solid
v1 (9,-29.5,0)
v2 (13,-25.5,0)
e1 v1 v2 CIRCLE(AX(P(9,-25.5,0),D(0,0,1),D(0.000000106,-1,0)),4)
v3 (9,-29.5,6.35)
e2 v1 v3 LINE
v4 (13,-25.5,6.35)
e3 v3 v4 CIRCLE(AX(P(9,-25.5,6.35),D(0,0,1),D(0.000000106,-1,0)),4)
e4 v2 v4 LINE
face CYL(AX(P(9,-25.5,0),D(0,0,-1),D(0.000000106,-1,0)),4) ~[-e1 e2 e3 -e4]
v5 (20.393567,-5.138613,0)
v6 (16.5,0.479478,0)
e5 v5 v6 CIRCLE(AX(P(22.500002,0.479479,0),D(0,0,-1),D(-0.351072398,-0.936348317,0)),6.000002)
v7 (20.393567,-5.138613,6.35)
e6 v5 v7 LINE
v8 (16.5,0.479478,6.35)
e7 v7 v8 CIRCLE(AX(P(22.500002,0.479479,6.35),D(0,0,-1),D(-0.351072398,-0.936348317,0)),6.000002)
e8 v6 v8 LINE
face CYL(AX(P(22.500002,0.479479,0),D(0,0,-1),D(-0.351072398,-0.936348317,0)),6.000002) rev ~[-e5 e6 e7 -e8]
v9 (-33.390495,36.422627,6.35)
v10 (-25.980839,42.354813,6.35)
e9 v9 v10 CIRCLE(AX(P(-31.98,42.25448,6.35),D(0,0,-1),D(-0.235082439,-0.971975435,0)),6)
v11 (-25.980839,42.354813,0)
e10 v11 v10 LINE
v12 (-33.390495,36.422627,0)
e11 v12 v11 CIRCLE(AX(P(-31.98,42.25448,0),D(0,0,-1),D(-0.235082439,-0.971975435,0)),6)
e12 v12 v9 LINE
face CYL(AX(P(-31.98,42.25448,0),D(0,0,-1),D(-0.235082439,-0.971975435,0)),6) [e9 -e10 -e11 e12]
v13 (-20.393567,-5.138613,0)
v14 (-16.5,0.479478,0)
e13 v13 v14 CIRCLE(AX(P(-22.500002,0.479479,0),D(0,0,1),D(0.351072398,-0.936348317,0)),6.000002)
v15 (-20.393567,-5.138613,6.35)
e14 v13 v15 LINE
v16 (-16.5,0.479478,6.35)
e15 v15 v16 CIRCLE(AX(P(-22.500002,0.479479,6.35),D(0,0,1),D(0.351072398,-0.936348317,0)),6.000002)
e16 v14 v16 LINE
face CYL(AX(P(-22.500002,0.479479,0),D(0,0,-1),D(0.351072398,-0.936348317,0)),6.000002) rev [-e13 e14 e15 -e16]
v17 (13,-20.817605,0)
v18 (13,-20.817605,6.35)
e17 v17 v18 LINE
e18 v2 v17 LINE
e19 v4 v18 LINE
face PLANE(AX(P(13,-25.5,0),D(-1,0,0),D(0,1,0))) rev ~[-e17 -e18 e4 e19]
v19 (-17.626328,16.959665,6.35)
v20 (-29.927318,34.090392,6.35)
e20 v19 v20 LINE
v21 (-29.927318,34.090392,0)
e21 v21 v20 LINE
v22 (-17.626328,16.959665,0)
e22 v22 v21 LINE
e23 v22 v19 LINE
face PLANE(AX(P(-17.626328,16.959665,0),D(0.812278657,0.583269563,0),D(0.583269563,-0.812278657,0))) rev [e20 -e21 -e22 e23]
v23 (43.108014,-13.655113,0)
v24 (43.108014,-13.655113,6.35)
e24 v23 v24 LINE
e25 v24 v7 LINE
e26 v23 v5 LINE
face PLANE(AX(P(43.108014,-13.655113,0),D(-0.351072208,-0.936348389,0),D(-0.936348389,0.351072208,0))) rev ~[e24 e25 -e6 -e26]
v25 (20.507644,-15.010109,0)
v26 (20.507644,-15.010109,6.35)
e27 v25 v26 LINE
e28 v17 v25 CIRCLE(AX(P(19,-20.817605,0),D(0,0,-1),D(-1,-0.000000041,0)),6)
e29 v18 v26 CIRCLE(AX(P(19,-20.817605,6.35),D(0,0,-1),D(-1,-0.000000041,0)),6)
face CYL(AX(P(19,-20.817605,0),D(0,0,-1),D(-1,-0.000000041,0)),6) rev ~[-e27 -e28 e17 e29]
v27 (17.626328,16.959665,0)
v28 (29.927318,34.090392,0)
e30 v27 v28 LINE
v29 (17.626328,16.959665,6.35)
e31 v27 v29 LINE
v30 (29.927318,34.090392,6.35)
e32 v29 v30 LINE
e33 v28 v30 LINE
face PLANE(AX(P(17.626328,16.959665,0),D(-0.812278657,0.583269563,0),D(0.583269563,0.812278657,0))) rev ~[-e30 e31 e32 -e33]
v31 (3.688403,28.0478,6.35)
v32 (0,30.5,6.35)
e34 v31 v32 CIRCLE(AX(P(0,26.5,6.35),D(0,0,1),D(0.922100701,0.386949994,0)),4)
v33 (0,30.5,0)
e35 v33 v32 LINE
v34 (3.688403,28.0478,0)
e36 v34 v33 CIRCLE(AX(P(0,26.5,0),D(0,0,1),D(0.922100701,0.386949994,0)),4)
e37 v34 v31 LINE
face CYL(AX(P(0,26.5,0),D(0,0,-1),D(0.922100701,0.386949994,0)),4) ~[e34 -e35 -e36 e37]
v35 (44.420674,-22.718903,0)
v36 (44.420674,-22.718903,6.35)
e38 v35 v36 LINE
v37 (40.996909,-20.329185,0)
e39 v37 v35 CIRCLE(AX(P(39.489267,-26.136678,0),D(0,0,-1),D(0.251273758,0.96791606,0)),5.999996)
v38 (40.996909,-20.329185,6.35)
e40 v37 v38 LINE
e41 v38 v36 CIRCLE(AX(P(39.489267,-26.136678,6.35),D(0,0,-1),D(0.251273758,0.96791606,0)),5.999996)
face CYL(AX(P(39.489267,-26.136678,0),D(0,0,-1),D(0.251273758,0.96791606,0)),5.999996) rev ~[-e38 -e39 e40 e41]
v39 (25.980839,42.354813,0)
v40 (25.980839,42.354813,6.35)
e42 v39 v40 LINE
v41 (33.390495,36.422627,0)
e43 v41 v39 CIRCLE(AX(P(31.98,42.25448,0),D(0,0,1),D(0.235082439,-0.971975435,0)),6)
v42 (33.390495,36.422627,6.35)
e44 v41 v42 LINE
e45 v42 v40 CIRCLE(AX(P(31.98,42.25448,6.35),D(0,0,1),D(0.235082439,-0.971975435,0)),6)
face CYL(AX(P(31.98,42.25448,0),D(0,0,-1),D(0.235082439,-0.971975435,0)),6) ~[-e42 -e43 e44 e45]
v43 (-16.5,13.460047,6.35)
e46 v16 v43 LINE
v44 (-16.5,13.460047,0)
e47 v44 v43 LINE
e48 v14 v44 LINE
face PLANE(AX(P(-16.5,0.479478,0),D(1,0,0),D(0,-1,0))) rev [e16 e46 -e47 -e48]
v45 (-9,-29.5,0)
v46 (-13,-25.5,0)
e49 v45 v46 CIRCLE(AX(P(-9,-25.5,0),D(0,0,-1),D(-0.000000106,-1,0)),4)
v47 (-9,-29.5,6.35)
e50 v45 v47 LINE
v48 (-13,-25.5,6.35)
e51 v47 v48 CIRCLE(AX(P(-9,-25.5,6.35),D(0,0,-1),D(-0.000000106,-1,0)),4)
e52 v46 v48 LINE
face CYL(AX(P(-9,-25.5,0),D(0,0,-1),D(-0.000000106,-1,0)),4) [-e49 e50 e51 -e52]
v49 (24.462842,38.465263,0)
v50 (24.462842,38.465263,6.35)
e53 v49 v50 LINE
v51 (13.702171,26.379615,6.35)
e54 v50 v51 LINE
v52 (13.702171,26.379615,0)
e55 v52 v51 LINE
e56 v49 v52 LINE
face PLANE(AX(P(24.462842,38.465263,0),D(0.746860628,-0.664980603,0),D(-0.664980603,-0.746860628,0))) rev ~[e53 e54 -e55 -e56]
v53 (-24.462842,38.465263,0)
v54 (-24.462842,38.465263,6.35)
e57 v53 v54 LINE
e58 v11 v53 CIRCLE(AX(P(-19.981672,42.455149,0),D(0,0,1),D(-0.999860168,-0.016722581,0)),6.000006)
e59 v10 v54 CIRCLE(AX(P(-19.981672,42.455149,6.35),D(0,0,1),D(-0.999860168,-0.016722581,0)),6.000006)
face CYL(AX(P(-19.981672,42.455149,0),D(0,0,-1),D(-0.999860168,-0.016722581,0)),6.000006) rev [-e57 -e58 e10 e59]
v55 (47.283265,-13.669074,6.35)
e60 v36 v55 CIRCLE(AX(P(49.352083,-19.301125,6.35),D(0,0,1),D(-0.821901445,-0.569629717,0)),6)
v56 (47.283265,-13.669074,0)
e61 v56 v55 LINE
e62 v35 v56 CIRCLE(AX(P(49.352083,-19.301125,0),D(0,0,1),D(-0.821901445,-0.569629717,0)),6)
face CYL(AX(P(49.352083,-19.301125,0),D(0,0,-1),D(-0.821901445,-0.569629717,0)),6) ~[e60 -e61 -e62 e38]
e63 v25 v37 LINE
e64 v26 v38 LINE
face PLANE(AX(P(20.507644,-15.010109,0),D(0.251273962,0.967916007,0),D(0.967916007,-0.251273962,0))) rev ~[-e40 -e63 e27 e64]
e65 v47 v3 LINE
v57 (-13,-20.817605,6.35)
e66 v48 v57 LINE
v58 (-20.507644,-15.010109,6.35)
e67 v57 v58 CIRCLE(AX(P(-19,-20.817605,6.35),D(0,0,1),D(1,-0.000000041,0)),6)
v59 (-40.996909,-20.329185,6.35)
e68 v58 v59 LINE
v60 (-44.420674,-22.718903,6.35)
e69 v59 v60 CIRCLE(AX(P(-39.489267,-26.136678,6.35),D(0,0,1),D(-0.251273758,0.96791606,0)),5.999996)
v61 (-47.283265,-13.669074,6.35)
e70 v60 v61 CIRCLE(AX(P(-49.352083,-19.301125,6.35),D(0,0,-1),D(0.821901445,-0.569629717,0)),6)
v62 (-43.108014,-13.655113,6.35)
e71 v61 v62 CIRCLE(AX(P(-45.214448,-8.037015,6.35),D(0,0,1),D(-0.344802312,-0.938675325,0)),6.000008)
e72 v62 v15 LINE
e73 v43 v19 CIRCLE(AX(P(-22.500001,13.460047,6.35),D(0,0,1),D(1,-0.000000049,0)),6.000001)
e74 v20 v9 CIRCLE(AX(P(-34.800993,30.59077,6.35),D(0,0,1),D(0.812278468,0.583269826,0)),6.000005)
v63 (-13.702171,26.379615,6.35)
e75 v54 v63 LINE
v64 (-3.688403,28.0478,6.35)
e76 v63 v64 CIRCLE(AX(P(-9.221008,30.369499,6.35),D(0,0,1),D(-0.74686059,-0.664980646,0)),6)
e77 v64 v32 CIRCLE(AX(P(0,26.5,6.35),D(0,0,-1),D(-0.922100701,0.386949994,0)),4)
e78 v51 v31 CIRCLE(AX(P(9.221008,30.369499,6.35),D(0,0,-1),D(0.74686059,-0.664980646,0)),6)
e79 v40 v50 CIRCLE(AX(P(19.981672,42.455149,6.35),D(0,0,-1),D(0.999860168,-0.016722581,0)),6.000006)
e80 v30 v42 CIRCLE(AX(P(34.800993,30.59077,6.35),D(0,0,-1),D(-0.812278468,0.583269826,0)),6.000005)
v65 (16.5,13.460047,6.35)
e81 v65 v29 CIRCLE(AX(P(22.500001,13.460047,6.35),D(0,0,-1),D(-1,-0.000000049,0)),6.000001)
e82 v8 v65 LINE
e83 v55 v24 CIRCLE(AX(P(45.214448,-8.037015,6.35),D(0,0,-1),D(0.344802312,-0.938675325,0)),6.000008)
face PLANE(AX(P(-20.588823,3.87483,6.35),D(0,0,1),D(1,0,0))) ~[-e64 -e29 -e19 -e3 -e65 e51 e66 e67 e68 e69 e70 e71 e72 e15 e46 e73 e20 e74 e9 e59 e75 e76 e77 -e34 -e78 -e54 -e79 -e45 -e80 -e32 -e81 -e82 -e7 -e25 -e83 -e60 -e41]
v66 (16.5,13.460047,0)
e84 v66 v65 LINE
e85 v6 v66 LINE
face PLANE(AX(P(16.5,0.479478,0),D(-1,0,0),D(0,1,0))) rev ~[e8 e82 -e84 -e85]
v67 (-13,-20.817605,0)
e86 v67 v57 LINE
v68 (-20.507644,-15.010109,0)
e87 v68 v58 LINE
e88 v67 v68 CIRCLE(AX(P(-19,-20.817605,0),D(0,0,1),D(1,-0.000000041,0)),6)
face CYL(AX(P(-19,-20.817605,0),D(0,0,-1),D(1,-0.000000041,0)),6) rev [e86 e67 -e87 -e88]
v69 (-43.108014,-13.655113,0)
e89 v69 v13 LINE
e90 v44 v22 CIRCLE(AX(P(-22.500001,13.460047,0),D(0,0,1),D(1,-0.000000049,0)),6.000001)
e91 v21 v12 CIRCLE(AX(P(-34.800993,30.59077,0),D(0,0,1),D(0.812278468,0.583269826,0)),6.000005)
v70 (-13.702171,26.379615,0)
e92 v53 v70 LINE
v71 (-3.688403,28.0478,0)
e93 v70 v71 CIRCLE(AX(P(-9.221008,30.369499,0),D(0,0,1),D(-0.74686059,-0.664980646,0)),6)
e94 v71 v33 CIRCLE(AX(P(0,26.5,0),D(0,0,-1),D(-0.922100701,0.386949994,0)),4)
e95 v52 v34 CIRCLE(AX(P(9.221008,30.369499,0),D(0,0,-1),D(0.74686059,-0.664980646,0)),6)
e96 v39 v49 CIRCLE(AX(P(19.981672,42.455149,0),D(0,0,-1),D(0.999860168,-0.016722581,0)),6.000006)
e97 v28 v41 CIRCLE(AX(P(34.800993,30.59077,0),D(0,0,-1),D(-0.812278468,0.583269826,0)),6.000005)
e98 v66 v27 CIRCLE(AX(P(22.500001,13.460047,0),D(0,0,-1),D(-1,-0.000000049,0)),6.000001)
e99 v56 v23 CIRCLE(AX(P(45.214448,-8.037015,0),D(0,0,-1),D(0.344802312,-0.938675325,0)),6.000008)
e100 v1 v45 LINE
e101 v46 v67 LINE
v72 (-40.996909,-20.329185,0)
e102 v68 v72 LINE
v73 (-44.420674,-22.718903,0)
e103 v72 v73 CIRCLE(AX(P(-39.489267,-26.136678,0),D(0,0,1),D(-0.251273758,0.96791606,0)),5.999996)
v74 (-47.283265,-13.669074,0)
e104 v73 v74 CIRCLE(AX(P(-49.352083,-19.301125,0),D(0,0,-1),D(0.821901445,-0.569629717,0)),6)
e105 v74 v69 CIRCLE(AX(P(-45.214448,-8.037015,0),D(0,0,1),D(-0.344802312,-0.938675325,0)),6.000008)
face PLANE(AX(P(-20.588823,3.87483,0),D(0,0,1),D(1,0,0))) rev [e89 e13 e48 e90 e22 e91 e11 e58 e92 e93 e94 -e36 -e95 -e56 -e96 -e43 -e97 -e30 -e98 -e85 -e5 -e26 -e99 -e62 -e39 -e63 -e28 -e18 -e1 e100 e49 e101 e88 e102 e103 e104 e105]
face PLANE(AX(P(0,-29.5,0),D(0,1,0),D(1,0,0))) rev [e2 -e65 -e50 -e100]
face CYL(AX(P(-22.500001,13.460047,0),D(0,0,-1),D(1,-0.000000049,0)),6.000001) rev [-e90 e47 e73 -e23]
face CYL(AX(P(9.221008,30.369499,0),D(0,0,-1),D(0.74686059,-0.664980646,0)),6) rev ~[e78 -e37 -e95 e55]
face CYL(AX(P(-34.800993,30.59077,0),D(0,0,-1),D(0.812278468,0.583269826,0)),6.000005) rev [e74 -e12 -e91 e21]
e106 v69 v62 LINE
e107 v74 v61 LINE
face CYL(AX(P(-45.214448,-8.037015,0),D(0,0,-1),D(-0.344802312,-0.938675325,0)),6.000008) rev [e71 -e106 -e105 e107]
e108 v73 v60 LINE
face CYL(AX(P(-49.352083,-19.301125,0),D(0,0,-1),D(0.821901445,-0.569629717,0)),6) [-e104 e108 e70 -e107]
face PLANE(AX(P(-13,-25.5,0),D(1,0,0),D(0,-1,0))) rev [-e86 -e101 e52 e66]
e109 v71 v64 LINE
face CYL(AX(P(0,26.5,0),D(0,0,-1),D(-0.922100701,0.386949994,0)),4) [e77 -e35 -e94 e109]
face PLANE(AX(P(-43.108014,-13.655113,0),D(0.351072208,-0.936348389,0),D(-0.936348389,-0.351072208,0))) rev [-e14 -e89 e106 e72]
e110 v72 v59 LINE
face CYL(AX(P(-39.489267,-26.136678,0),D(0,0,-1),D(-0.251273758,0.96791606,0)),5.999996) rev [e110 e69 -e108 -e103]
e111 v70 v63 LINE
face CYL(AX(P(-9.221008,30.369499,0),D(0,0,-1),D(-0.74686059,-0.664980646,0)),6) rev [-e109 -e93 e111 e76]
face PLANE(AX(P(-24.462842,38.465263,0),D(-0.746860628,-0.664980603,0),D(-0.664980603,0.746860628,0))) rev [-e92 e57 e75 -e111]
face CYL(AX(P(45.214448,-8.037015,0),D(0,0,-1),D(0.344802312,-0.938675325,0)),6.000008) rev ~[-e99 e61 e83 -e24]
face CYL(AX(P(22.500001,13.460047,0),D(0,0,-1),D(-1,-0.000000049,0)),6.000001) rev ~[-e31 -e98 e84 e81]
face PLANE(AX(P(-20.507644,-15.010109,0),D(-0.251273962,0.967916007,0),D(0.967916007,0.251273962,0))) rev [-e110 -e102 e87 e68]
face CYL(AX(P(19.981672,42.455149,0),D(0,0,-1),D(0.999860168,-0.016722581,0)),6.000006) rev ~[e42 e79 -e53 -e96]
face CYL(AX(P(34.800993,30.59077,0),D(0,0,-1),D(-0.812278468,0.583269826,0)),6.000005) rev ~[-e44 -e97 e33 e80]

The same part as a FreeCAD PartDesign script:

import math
import FreeCAD as App
import Part
import Sketcher

V = App.Vector
Q = App.Units.Quantity

doc = App.newDocument("Part")
body = doc.addObject("PartDesign::Body", "Body")

sketch1 = doc.addObject("Sketcher::SketchObject", "Sketch")
body.addObject(sketch1)
sketch1.AttachmentSupport = (doc.XY_Plane, [""])
sketch1.MapMode = "FlatFace"
sketch1.addGeometry([
    Part.ArcOfCircle(Part.Circle(V(45.2, -8, 0), V(0, 0, 1), 6), math.radians(-111), math.radians(-70)),
    Part.LineSegment(V(43.1, -13.7, 0), V(20.4, -5.1, 0)),
    Part.ArcOfCircle(Part.Circle(V(22.5, 0.5, 0), V(0, 0, 1), 6), math.radians(-180), math.radians(-111)),
    Part.LineSegment(V(16.5, 0.5, 0), V(16.5, 13.5, 0)),
    Part.ArcOfCircle(Part.Circle(V(22.5, 13.5, 0), V(0, 0, 1), 6), math.radians(144), math.radians(180)),
    Part.LineSegment(V(17.6, 17, 0), V(29.9, 34.1, 0)),
    Part.ArcOfCircle(Part.Circle(V(34.8, 30.6, 0), V(0, 0, 1), 6), math.radians(104), math.radians(144)),
    Part.ArcOfCircle(Part.Circle(V(32, 42.3, 0), V(0, 0, 1), 6), math.radians(-76), math.radians(179)),
    Part.ArcOfCircle(Part.Circle(V(20, 42.5, 0), V(0, 0, 1), 6), math.radians(-42), math.radians(-1)),
    Part.LineSegment(V(24.5, 38.5, 0), V(13.7, 26.4, 0)),
    Part.ArcOfCircle(Part.Circle(V(9.2, 30.4, 0), V(0, 0, 1), 6), math.radians(-157), math.radians(-42)),
    Part.ArcOfCircle(Part.Circle(V(0, 26.5, 0), V(0, 0, 1), 4), math.radians(23), math.radians(90)),
    Part.LineSegment(V(0, 30.5, 0), V(0, -29.5, 0)),
    Part.LineSegment(V(0, -29.5, 0), V(9, -29.5, 0)),
    Part.ArcOfCircle(Part.Circle(V(9, -25.5, 0), V(0, 0, 1), 4), math.radians(-90), math.radians(0)),
    Part.LineSegment(V(13, -25.5, 0), V(13, -20.8, 0)),
    Part.ArcOfCircle(Part.Circle(V(19, -20.8, 0), V(0, 0, 1), 6), math.radians(75), math.radians(180)),
    Part.LineSegment(V(20.5, -15, 0), V(41, -20.3, 0)),
    Part.ArcOfCircle(Part.Circle(V(39.5, -26.1, 0), V(0, 0, 1), 6), math.radians(35), math.radians(75)),
    Part.ArcOfCircle(Part.Circle(V(49.4, -19.3, 0), V(0, 0, 1), 6), math.radians(-145), math.radians(110)),
], False)
sketch1.addConstraint([
    Sketcher.Constraint("Tangent", 0, 1, 1, 1),
    Sketcher.Constraint("Tangent", 1, 2, 2, 2),
    Sketcher.Constraint("Tangent", 2, 1, 3, 1),
    Sketcher.Constraint("Tangent", 3, 2, 4, 2),
    Sketcher.Constraint("Tangent", 4, 1, 5, 1),
    Sketcher.Constraint("Tangent", 5, 2, 6, 2),
    Sketcher.Constraint("Tangent", 6, 1, 7, 1),
    Sketcher.Constraint("Tangent", 7, 2, 8, 2),
    Sketcher.Constraint("Tangent", 8, 1, 9, 1),
    Sketcher.Constraint("Tangent", 9, 2, 10, 2),
    Sketcher.Constraint("Tangent", 10, 1, 11, 1),
    Sketcher.Constraint("Coincident", 11, 2, 12, 1),
    Sketcher.Constraint("Coincident", 12, 2, 13, 1),
    Sketcher.Constraint("Tangent", 13, 2, 14, 1),
    Sketcher.Constraint("Tangent", 14, 2, 15, 1),
    Sketcher.Constraint("Tangent", 15, 2, 16, 2),
    Sketcher.Constraint("Tangent", 16, 1, 17, 1),
    Sketcher.Constraint("Tangent", 17, 2, 18, 2),
    Sketcher.Constraint("Tangent", 18, 1, 19, 1),
    Sketcher.Constraint("Tangent", 19, 2, 0, 2),
    Sketcher.Constraint("Vertical", 3),
    Sketcher.Constraint("Vertical", 12),
    Sketcher.Constraint("Horizontal", 13),
    Sketcher.Constraint("Vertical", 15),
    Sketcher.Constraint("Equal", 2, 4),
    Sketcher.Constraint("Equal", 4, 7),
    Sketcher.Constraint("Equal", 6, 8),
    Sketcher.Constraint("Equal", 7, 10),
    Sketcher.Constraint("Equal", 11, 14),
    Sketcher.Constraint("Equal", 10, 16),
    Sketcher.Constraint("Equal", 16, 19),
    Sketcher.Constraint("PointOnObject", 11, 3, -2),
    Sketcher.Constraint("PointOnObject", 11, 2, -2),
    Sketcher.Constraint("Radius", 4, Q("6.000001 mm")),
    Sketcher.Constraint("Radius", 11, Q("4 mm")),
    Sketcher.Constraint("DistanceX", 13, 1, 13, 2, Q("9 mm")),
    Sketcher.Constraint("DistanceY", 12, 2, 12, 1, Q("60 mm")),
    Sketcher.Constraint("DistanceX", -1, 1, 4, 3, Q("22.500001 mm")),
    Sketcher.Constraint("DistanceY", -1, 1, 11, 3, Q("26.5 mm")),
    Sketcher.Constraint("DistanceX", -1, 1, 7, 3, Q("31.98 mm")),
    Sketcher.Constraint("Radius", 0, Q("6.000008 mm")),
    Sketcher.Constraint("Radius", 6, Q("6.000005 mm")),
    Sketcher.Constraint("Radius", 18, Q("5.999996 mm")),
    Sketcher.Constraint("DistanceY", 2, 3, 7, 3, Q("41.775001 mm")),
    Sketcher.Constraint("DistanceY", 3, 1, 3, 2, Q("12.980569 mm")),
    Sketcher.Constraint("DistanceY", -1, 1, 10, 3, Q("30.369499 mm")),
    Sketcher.Constraint("DistanceY", 4, 3, 8, 3, Q("28.995101 mm")),
    Sketcher.Constraint("DistanceY", 0, 1, 0, 3, Q("5.618098 mm")),
    Sketcher.Constraint("DistanceY", 0, 1, 1, 2, Q("8.5165 mm")),
    Sketcher.Constraint("DistanceY", 15, 1, 15, 2, Q("4.682395 mm")),
    Sketcher.Constraint("DistanceY", -1, 1, 2, 3, Q("0.479479 mm")),
    Sketcher.Constraint("DistanceY", -1, 1, 6, 3, Q("30.59077 mm")),
    Sketcher.Constraint("DistanceY", 16, 1, -1, 1, Q("15.010109 mm")),
    Sketcher.Constraint("DistanceX", -1, 1, 17, 2, Q("40.996909 mm")),
])
pad1 = doc.addObject("PartDesign::Pad", "Pad")
body.addObject(pad1)
pad1.Profile = sketch1
pad1.Length = 6.35
body2 = doc.addObject("PartDesign::Body", "Body001")
doc.recompute()

body2.BaseFeature = body
doc.recompute()

mirroring = doc.addObject("Part::Mirroring", "Mirroring")
mirroring.Source = body
mirroring.Base = V(0, 0, 0)
mirroring.Normal = V(1, 0, 0)
body3 = doc.addObject("PartDesign::Body", "Body002")
body3.BaseFeature = mirroring
boolean = doc.addObject("PartDesign::Boolean", "Boolean")
body2.addObject(boolean)
boolean.Type = "Fuse"
boolean.addObjects([body3])
doc.recompute()
mirroring.Visibility = False

doc.recompute()
